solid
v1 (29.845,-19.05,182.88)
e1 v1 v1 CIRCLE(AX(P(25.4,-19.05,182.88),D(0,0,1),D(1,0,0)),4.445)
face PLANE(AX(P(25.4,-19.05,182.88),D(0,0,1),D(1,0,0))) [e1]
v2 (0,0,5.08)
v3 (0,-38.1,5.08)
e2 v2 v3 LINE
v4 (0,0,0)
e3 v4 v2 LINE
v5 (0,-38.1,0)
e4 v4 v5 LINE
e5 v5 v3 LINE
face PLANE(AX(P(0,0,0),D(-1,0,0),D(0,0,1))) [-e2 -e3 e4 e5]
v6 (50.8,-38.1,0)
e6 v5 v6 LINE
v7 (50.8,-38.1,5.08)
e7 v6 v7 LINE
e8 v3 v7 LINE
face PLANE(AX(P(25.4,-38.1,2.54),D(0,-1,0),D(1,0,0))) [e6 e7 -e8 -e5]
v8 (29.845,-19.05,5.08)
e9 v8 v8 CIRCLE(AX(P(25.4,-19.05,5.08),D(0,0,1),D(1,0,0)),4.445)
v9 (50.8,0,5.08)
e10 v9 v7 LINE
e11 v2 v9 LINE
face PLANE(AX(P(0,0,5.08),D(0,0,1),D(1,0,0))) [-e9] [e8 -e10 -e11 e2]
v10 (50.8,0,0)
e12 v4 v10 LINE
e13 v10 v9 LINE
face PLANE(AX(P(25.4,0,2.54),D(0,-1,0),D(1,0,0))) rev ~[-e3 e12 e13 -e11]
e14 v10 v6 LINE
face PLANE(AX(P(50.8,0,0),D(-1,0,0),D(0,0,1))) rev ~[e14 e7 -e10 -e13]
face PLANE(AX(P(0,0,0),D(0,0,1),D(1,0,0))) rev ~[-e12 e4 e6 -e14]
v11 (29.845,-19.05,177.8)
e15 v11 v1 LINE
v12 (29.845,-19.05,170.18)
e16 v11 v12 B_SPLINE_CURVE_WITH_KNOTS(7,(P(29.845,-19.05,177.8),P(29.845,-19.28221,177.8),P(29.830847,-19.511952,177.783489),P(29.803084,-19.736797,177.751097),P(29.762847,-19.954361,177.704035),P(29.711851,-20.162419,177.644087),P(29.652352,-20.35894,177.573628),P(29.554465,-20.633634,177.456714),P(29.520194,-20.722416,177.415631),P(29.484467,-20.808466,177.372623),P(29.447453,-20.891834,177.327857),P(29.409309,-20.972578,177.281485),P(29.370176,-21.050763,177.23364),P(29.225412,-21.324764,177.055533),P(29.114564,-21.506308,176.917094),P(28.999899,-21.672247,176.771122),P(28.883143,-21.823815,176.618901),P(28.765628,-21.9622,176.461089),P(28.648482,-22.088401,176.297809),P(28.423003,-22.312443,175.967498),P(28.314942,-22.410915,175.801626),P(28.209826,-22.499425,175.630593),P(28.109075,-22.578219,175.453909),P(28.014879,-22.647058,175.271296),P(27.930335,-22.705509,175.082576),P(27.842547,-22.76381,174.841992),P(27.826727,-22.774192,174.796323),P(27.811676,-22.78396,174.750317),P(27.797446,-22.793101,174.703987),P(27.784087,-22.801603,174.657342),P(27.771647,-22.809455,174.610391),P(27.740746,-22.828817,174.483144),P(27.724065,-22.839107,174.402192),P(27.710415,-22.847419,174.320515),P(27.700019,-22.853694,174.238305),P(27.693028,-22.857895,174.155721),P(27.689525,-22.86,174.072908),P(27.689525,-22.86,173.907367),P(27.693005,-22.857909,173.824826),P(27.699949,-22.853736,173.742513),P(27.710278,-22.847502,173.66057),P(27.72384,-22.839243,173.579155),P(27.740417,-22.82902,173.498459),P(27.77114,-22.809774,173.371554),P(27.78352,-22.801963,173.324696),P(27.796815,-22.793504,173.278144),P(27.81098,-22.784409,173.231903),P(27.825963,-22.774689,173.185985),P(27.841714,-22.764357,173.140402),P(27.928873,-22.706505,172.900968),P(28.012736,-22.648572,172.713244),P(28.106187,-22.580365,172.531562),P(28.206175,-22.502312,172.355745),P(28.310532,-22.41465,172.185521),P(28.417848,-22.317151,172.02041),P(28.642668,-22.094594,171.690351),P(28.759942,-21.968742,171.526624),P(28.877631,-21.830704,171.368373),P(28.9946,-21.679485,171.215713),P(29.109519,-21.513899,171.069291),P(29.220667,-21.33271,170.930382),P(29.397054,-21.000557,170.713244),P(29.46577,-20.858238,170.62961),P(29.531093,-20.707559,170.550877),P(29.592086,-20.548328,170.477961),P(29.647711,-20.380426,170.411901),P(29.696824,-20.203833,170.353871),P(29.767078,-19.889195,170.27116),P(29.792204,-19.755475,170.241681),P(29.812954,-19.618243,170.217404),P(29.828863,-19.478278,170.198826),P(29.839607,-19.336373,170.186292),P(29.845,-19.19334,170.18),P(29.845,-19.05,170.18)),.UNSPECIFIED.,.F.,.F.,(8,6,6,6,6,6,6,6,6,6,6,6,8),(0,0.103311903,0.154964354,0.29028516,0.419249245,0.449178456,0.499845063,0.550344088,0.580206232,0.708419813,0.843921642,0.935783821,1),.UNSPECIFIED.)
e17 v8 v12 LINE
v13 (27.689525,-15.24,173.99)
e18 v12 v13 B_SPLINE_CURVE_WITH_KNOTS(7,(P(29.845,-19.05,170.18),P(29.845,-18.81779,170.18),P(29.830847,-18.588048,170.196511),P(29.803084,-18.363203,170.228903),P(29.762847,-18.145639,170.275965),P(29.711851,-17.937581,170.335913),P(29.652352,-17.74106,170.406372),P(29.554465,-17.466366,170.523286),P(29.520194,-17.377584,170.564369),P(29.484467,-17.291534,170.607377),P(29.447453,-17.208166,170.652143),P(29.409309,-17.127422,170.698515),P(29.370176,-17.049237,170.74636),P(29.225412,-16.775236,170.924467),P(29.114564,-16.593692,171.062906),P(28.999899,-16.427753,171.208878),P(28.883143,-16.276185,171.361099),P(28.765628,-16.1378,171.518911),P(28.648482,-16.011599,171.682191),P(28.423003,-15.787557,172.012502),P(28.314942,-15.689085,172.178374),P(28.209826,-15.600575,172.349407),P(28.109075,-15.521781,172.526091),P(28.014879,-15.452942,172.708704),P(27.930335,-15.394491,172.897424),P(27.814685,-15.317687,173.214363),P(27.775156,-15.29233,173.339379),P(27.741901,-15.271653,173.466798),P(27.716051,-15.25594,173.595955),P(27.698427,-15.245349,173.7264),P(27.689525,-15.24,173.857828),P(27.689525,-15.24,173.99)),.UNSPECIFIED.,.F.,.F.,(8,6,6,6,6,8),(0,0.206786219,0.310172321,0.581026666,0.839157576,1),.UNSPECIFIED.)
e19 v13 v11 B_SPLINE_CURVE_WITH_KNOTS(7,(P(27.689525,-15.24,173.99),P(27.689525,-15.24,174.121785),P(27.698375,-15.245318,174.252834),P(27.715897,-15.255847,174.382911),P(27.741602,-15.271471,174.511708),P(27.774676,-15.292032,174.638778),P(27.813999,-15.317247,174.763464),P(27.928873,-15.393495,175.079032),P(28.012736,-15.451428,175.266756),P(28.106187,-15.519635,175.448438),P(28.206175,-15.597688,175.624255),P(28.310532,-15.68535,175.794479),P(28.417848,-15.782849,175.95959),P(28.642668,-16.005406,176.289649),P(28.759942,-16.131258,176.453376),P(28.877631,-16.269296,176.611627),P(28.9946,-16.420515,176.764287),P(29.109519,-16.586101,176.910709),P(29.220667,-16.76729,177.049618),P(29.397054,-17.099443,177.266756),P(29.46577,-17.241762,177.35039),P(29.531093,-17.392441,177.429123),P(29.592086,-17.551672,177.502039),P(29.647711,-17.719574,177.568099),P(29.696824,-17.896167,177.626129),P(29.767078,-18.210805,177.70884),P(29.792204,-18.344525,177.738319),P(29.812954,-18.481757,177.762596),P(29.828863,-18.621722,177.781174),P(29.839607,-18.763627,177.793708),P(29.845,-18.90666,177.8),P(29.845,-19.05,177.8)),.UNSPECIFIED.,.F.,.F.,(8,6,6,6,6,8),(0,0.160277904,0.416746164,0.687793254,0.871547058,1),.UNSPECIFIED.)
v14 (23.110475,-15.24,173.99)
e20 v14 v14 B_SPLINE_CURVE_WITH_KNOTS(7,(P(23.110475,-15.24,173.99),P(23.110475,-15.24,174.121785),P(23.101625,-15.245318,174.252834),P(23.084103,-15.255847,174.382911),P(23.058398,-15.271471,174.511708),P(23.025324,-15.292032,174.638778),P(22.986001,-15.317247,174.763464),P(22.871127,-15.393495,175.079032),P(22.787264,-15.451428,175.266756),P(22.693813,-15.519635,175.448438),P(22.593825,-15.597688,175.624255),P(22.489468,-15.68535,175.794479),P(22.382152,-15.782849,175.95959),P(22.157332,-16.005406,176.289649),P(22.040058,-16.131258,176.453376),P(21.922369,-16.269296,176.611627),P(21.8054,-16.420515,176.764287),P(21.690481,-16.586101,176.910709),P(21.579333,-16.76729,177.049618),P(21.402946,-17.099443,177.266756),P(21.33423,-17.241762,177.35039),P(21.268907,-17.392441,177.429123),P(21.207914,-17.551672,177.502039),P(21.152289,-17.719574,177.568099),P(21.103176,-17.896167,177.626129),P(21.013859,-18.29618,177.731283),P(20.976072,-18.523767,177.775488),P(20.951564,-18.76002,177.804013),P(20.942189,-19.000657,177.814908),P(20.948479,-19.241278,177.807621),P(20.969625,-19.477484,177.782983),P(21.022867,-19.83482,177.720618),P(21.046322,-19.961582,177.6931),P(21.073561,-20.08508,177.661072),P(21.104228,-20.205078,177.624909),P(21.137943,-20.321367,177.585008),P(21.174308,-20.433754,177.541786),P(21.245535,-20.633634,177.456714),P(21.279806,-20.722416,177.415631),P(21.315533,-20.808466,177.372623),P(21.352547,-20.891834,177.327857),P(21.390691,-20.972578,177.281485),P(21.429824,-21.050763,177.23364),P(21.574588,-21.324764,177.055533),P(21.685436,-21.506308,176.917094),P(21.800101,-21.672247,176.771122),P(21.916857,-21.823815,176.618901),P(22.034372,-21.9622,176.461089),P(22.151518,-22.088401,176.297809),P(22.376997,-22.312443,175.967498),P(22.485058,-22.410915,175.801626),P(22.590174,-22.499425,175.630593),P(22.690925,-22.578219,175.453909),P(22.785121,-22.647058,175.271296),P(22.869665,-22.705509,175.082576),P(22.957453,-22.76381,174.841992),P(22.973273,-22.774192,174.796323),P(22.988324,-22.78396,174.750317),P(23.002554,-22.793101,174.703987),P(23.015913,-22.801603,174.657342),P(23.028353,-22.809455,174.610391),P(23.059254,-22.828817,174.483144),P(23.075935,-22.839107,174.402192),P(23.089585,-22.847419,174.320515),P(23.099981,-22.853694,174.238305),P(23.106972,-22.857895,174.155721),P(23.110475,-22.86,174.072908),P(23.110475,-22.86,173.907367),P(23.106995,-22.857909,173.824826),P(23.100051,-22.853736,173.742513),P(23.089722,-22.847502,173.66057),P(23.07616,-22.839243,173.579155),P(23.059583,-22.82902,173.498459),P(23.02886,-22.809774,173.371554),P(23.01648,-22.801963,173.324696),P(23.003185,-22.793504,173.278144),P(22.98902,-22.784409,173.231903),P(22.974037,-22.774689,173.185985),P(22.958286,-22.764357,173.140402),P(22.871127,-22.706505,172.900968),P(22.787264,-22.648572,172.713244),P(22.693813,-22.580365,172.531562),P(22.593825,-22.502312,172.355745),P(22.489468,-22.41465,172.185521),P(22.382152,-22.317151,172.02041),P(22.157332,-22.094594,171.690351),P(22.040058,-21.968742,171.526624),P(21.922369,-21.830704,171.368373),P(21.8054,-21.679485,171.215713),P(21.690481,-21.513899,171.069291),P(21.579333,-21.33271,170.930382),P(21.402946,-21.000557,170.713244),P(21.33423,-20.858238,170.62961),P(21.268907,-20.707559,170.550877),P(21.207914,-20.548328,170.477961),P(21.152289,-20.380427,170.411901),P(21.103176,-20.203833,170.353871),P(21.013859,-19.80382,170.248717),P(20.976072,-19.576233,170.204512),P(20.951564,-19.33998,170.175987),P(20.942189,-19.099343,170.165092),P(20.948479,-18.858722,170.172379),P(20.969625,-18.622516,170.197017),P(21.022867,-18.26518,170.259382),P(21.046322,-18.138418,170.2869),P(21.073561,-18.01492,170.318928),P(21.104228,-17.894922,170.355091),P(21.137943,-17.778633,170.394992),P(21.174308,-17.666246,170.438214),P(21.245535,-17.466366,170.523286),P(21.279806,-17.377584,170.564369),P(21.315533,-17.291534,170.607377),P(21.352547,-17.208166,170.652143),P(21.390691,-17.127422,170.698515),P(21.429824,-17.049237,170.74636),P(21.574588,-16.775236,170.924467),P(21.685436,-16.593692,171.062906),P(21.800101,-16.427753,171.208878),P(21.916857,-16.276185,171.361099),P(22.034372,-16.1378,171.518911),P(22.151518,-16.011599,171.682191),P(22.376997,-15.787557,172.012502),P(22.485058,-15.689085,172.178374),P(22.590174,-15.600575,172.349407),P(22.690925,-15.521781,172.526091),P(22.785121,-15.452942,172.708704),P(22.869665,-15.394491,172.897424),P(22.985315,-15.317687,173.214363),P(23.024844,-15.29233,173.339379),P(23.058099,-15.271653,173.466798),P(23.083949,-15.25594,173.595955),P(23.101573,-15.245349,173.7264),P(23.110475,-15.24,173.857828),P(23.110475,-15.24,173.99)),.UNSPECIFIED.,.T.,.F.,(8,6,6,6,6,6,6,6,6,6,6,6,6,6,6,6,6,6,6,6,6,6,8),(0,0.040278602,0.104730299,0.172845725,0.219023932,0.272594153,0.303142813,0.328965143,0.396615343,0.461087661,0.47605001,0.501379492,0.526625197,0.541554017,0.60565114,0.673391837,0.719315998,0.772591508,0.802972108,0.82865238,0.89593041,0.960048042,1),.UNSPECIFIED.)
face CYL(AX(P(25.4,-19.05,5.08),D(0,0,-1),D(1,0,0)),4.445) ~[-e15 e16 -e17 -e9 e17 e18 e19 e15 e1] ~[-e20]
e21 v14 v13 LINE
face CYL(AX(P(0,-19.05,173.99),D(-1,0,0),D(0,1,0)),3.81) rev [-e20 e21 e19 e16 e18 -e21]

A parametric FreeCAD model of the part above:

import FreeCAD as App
import Part
import Sketcher
Q = App.Units.Quantity


def add_polygon(sketch, points):
    """Adds a closed chain of lines whose ends are joined by coincident constraints."""
    first, n = sketch.GeometryCount, len(points)
    for a, b in zip(points, points[1:] + points[:1]):
        sketch.addGeometry(Part.LineSegment(App.Vector(*a, 0), App.Vector(*b, 0)), False)
    for i in range(n):
        sketch.addConstraint(Sketcher.Constraint("Coincident", first + i, 2, first + (i + 1) % n, 1))

doc = App.newDocument("Part")
body = doc.addObject("PartDesign::Body", "Body")

sketch1 = body.newObject("Sketcher::SketchObject", "Sketch")
sketch1.AttachmentSupport = (doc.getObject("XZ_Plane"), [""])
sketch1.MapMode = "FlatFace"
add_polygon(sketch1, [(0, 5.08), (0, 0), (50.8, 0), (50.8, 5.08)])
sketch1.addConstraint([
    Sketcher.Constraint("Vertical", 0),
    Sketcher.Constraint("Horizontal", 1),
    Sketcher.Constraint("Vertical", 2),
    Sketcher.Constraint("Horizontal", 3),
    Sketcher.Constraint("Coincident", 0, 2, -1, 1),
    Sketcher.Constraint("DistanceX", 1, 1, 1, 2, Q("2 in")),
    Sketcher.Constraint("DistanceY", 0, 2, 0, 1, Q("0.2 in")),
])
pad1 = body.newObject("PartDesign::Pad", "Pad")
pad1.Profile = sketch1
pad1.Length = Q("1.5 in")

sketch2 = body.newObject("Sketcher::SketchObject", "Sketch001")
sketch2.AttachmentSupport = (doc.getObject("XY_Plane"), [""])
sketch2.MapMode = "FlatFace"
sketch2.AttachmentOffset = App.Placement(App.Vector(0, 0, 0.2 * 25.4), App.Rotation())
sketch2.addGeometry(Part.Circle(App.Vector(25.4, -19.05, 0), App.Vector(0, 0, 1), 4.445), False)
sketch2.addConstraint([
    Sketcher.Constraint("Diameter", 0, Q("0.35 in")),
    Sketcher.Constraint("DistanceX", -1, 1, 0, 3, Q("1 in")),
    Sketcher.Constraint("DistanceY", 0, 3, -1, 1, Q("0.75 in")),
])
pad2 = body.newObject("PartDesign::Pad", "Pad001")
pad2.Profile = sketch2
pad2.Length = Q("7 in")

sketch3 = body.newObject("Sketcher::SketchObject", "Sketch002")
sketch3.AttachmentSupport = (doc.getObject("YZ_Plane"), [""])
sketch3.MapMode = "FlatFace"
sketch3.addGeometry(Part.Circle(App.Vector(-19.05, 173.99, 0), App.Vector(0, 0, 1), 3.81), False)
sketch3.addConstraint([
    Sketcher.Constraint("Diameter", 0, Q("0.3 in")),
    Sketcher.Constraint("DistanceX", 0, 3, -1, 1, Q("0.75 in")),
    Sketcher.Constraint("DistanceY", -1, 1, 0, 3, Q("6.85 in")),
])
pocket1 = body.newObject("PartDesign::Pocket", "Pocket")
pocket1.Profile = sketch3
pocket1.Length = Q("1.995 in")
pocket1.Reversed = True

doc.recompute()
